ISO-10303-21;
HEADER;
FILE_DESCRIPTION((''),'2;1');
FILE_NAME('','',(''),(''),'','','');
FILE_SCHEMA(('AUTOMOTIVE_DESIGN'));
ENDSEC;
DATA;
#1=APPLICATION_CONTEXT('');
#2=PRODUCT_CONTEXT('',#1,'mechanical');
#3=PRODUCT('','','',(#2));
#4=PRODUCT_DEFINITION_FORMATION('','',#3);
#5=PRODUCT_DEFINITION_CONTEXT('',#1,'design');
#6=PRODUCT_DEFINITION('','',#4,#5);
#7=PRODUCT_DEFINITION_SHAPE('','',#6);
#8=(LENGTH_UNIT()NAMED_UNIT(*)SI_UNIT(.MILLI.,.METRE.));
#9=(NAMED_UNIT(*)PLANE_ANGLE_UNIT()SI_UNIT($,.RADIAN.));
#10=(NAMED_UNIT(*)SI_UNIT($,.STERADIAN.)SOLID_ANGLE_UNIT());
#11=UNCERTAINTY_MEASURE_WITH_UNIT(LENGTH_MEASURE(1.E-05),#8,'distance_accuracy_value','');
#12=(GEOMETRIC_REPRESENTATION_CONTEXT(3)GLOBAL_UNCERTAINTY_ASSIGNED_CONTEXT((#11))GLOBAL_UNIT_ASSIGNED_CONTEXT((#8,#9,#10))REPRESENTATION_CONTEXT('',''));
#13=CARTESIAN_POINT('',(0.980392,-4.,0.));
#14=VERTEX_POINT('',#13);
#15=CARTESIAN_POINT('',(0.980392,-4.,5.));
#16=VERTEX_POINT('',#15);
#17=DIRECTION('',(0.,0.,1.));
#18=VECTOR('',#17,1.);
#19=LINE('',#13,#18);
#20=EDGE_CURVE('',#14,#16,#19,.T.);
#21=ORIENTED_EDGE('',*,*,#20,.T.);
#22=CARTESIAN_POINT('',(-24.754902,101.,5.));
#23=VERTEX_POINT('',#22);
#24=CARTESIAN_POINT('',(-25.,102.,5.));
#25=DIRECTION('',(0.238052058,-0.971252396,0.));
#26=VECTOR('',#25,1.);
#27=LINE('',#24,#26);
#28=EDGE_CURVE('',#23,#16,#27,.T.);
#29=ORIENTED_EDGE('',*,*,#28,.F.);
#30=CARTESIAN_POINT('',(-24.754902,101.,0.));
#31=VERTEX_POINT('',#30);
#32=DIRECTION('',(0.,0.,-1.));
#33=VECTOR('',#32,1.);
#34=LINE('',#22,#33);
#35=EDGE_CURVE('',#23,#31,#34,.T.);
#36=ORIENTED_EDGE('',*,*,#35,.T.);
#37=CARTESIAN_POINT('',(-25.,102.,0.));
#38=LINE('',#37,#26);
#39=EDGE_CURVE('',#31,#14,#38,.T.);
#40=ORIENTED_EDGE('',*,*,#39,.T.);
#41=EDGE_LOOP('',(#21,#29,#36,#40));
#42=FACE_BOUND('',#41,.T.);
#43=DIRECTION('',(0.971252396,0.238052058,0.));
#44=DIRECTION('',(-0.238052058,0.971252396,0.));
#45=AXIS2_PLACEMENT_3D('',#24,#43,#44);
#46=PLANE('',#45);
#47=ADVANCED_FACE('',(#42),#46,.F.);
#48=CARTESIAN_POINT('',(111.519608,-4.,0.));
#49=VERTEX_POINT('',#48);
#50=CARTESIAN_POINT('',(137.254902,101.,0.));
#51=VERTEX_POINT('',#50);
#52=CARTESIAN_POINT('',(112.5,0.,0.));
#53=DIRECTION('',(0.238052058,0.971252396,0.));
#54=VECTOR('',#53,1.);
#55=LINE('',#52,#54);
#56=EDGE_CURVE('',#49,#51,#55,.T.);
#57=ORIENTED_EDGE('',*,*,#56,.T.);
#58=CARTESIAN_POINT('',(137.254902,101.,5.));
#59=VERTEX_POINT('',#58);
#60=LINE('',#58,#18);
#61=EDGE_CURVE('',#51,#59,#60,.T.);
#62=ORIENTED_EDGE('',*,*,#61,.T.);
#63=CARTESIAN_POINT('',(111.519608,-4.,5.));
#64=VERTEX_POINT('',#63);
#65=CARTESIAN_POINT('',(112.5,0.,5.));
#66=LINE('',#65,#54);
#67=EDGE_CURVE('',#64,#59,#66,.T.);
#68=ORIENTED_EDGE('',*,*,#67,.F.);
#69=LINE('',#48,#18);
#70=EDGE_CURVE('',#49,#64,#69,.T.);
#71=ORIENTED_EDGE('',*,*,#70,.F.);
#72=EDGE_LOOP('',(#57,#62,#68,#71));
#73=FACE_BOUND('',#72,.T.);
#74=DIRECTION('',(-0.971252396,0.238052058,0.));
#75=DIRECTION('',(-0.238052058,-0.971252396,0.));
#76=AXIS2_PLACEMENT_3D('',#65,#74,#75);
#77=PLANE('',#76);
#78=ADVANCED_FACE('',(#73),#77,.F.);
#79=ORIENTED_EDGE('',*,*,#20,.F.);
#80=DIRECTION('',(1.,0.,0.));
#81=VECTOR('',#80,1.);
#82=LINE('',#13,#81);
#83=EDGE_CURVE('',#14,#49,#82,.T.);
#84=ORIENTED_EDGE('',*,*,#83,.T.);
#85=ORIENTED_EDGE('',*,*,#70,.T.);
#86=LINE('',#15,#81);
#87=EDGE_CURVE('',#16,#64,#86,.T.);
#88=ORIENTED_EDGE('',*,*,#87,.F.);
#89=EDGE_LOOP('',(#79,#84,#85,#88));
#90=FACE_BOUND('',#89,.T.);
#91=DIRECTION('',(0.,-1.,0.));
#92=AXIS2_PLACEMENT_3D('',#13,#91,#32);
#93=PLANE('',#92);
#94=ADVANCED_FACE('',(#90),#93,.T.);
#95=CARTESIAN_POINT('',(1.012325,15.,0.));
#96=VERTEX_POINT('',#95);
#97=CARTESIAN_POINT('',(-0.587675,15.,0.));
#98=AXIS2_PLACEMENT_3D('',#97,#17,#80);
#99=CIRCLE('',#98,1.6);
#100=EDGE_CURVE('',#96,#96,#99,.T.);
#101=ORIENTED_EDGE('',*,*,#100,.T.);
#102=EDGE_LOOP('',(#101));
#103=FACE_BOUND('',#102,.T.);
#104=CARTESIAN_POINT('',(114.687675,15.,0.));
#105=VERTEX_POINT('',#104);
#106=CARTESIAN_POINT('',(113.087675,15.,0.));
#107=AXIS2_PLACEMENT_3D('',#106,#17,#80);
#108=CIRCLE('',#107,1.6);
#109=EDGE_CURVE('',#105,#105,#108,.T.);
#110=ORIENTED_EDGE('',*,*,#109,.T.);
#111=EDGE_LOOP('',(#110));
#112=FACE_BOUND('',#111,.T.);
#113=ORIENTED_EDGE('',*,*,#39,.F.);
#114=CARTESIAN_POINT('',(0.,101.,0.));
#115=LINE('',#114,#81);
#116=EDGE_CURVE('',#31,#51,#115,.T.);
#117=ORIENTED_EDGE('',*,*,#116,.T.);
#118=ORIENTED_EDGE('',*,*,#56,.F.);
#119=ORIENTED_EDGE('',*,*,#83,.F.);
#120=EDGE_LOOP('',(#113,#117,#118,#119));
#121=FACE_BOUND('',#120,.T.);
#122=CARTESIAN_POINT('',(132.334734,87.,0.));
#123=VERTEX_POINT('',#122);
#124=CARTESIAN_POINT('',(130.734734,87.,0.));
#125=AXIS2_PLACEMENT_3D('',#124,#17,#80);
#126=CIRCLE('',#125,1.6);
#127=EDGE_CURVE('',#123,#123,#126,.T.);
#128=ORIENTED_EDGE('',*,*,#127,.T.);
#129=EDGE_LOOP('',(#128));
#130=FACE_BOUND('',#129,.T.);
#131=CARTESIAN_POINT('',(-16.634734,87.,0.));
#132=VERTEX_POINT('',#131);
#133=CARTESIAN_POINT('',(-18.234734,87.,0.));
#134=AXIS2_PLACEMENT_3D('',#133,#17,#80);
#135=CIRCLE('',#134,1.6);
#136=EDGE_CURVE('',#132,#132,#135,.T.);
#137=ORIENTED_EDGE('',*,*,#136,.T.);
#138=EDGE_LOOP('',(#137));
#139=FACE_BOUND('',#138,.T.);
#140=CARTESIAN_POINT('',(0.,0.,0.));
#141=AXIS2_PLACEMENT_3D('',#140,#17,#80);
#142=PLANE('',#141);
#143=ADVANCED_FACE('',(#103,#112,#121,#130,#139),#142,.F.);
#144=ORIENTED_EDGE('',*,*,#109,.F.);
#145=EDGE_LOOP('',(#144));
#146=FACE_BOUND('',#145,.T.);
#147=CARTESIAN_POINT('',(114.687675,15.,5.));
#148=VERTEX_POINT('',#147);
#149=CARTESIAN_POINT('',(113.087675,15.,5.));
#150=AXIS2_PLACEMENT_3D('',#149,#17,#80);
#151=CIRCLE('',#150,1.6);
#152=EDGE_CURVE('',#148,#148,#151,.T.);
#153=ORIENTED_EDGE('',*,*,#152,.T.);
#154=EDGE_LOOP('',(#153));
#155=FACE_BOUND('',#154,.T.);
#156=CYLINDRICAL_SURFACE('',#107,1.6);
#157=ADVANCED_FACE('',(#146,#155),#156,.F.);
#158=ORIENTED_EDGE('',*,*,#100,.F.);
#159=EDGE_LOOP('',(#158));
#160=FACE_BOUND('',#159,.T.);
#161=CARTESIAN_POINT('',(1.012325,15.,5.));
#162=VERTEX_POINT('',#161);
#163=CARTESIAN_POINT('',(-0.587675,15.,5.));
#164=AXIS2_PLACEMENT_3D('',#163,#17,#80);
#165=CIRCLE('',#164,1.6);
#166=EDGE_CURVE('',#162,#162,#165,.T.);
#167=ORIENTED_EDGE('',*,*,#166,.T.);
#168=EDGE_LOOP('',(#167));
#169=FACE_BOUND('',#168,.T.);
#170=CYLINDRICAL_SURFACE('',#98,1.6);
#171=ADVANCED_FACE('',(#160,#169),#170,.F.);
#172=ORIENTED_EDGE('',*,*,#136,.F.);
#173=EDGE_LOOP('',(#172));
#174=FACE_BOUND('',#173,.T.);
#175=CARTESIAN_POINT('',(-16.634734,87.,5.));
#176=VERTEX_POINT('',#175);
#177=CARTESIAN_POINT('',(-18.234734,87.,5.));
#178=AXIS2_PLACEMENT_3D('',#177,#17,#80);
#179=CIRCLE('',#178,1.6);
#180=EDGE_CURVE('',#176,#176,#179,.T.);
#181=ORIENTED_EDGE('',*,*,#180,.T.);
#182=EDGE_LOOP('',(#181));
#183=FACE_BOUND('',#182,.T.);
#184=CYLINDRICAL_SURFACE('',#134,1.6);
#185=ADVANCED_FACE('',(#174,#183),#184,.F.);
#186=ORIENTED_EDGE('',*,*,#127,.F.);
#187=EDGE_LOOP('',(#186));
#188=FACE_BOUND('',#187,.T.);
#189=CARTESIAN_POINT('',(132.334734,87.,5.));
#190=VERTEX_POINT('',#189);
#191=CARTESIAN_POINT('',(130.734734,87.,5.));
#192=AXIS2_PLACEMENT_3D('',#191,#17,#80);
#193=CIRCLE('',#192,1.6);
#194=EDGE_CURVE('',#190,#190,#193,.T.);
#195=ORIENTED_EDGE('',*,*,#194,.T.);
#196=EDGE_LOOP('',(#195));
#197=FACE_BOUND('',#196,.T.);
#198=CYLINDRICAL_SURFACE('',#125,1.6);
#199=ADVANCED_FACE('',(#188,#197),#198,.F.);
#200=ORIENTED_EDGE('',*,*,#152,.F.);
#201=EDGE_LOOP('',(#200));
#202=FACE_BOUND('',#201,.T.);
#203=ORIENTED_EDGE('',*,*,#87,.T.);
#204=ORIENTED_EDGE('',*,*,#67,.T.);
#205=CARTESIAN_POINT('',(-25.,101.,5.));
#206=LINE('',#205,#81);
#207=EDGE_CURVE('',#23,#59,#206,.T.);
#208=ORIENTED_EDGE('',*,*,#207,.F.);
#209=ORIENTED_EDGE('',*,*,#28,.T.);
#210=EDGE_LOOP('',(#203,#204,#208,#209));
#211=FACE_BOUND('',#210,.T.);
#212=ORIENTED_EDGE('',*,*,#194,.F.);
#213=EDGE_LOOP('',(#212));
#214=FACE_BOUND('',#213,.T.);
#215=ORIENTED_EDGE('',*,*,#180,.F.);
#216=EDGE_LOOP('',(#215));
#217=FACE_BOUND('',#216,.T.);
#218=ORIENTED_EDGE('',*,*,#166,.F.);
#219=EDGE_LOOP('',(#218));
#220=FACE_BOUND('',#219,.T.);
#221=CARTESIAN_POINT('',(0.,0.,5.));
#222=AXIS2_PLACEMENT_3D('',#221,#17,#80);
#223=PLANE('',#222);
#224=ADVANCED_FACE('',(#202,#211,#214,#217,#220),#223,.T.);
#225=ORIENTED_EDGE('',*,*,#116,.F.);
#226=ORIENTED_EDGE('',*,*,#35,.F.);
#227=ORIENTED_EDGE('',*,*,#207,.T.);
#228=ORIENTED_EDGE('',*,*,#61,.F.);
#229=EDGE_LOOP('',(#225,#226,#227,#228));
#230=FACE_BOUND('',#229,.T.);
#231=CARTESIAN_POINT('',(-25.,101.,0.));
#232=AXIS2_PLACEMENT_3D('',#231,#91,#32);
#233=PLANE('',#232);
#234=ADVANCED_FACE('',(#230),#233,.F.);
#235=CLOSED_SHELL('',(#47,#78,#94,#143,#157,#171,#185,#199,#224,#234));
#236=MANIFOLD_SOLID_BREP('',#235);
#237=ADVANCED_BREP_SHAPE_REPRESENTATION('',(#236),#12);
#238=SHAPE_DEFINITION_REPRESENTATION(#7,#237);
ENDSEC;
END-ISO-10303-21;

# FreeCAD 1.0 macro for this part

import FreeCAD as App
import Part
import Sketcher

V = App.Vector
Q = App.Units.Quantity


def add_polygon(sketch, points):
    """Adds a closed chain of lines whose ends are joined by coincident constraints."""
    first, n = sketch.GeometryCount, len(points)
    for a, b in zip(points, points[1:] + points[:1]):
        sketch.addGeometry(Part.LineSegment(App.Vector(*a, 0), App.Vector(*b, 0)), False)
    for i in range(n):
        sketch.addConstraint(Sketcher.Constraint("Coincident", first + i, 2, first + (i + 1) % n, 1))

doc = App.newDocument("Part")
body = doc.addObject("PartDesign::Body", "Body")

sketch1 = body.newObject("Sketcher::SketchObject", "Sketch")
sketch1.AttachmentSupport = (doc.getObject("XY_Plane"), [""])
sketch1.MapMode = "FlatFace"
add_polygon(sketch1, [(0, 0), (112.5, 0), (137.5, 102), (-25, 102)])
sketch1.addConstraint(Sketcher.Constraint("Horizontal", 0))
sketch1.addConstraint(Sketcher.Constraint("Horizontal", 2))
sketch1.addConstraint(Sketcher.Constraint("Coincident", 3, 2, -1, 1))
sketch1.addConstraint(Sketcher.Constraint("Equal", 1, 3))
sketch1.addConstraint(Sketcher.Constraint("DistanceX", 0, 1, 0, 2, Q("112.5 mm")))
sketch1.addConstraint(Sketcher.Constraint("DistanceX", 2, 2, 2, 1, Q("162.5 mm")))
sketch1.addConstraint(Sketcher.Constraint("DistanceY", -1, 1, 1, 2, Q("102 mm")))
pad1 = body.newObject("PartDesign::Pad", "Pad")
pad1.Profile = sketch1
pad1.Length = 5

sketch2 = body.newObject("Sketcher::SketchObject", "Sketch001")
sketch2.AttachmentSupport = (doc.getObject("XY_Plane"), [""])
sketch2.MapMode = "FlatFace"
sketch2.AttachmentOffset = App.Placement(V(0, 0, 5), App.Rotation())
sketch2.addGeometry(Part.Circle(V(-18.234734, 87, 0), V(0, 0, 1), 1.6), False)
sketch2.addGeometry(Part.Circle(V(113.087675, 15, 0), V(0, 0, 1), 1.6), False)
sketch2.addGeometry(Part.Circle(V(-0.587675, 15, 0), V(0, 0, 1), 1.6), False)
sketch2.addGeometry(Part.Circle(V(130.734734, 87, 0), V(0, 0, 1), 1.6), False)
sketch2.addConstraint(Sketcher.Constraint("Equal", 0, 1))
sketch2.addConstraint(Sketcher.Constraint("Equal", 1, 2))
sketch2.addConstraint(Sketcher.Constraint("Equal", 2, 3))
sketch2.addConstraint(Sketcher.Constraint("Horizontal", 1, 3, 2, 3))
sketch2.addConstraint(Sketcher.Constraint("Horizontal", 0, 3, 3, 3))
sketch2.addConstraint(Sketcher.Constraint("Diameter", 0, Q("3.2 mm")))
sketch2.addConstraint(Sketcher.Constraint("DistanceY", -1, 1, 0, 3, Q("87 mm")))
sketch2.addConstraint(Sketcher.Constraint("DistanceY", -1, 1, 1, 3, Q("15 mm")))
sketch2.addConstraint(Sketcher.Constraint("DistanceX", 0, 3, 1, 3, Q("131.322409 mm")))
sketch2.addConstraint(Sketcher.Constraint("DistanceX", 0, 3, 2, 3, Q("17.647059 mm")))
sketch2.addConstraint(Sketcher.Constraint("DistanceX", 1, 3, 3, 3, Q("17.647059 mm")))
sketch2.addConstraint(Sketcher.Constraint("DistanceX", 0, 3, -1, 1, Q("18.234734 mm")))
pocket1 = body.newObject("PartDesign::Pocket", "Pocket")
pocket1.Profile = sketch2
pocket1.Type = "ThroughAll"

sketch3 = body.newObject("Sketcher::SketchObject", "Sketch002")
sketch3.AttachmentSupport = (doc.getObject("XY_Plane"), [""])
sketch3.MapMode = "FlatFace"
sketch3.AttachmentOffset = App.Placement(V(0, 0, 5), App.Rotation())
add_polygon(sketch3, [(-25, 102), (-25, 101), (139.707045, 101), (139.707045, 102)])
sketch3.addConstraint(Sketcher.Constraint("Vertical", 0))
sketch3.addConstraint(Sketcher.Constraint("Horizontal", 1))
sketch3.addConstraint(Sketcher.Constraint("Vertical", 2))
sketch3.addConstraint(Sketcher.Constraint("Horizontal", 3))
sketch3.addConstraint(Sketcher.Constraint("DistanceY", 0, 2, 0, 1, Q("1 mm")))
sketch3.addConstraint(Sketcher.Constraint("DistanceX", 0, 2, -1, 1, Q("25 mm")))
sketch3.addConstraint(Sketcher.Constraint("DistanceY", -1, 1, 0, 2, Q("101 mm")))
sketch3.addConstraint(Sketcher.Constraint("DistanceX", 1, 1, 1, 2, Q("164.707045 mm")))
pocket2 = body.newObject("PartDesign::Pocket", "Pocket001")
pocket2.Profile = sketch3
pocket2.Type = "ThroughAll"

sketch4 = body.newObject("Sketcher::SketchObject", "Sketch003")
sketch4.AttachmentSupport = (doc.getObject("XY_Plane"), [""])
sketch4.MapMode = "FlatFace"
sketch4.AttachmentOffset = App.Placement(V(0, 0, 5), App.Rotation())
add_polygon(sketch4, [(0, 0), (0.980392, -4), (111.519608, -4), (112.5, 0)])
sketch4.addConstraint(Sketcher.Constraint("Horizontal", 1))
sketch4.addConstraint(Sketcher.Constraint("Horizontal", 3))
sketch4.addConstraint(Sketcher.Constraint("Coincident", 3, 2, -1, 1))
sketch4.addConstraint(Sketcher.Constraint("Equal", 0, 2))
sketch4.addConstraint(Sketcher.Constraint("DistanceX", 3, 2, 3, 1, Q("112.5 mm")))
sketch4.addConstraint(Sketcher.Constraint("DistanceY", 0, 2, -1, 1, Q("4 mm")))
sketch4.addConstraint(Sketcher.Constraint("DistanceX", 1, 1, 1, 2, Q("110.539216 mm")))
pad2 = body.newObject("PartDesign::Pad", "Pad001")
pad2.Profile = sketch4
pad2.Length = 5
pad2.Reversed = True

doc.recompute()
